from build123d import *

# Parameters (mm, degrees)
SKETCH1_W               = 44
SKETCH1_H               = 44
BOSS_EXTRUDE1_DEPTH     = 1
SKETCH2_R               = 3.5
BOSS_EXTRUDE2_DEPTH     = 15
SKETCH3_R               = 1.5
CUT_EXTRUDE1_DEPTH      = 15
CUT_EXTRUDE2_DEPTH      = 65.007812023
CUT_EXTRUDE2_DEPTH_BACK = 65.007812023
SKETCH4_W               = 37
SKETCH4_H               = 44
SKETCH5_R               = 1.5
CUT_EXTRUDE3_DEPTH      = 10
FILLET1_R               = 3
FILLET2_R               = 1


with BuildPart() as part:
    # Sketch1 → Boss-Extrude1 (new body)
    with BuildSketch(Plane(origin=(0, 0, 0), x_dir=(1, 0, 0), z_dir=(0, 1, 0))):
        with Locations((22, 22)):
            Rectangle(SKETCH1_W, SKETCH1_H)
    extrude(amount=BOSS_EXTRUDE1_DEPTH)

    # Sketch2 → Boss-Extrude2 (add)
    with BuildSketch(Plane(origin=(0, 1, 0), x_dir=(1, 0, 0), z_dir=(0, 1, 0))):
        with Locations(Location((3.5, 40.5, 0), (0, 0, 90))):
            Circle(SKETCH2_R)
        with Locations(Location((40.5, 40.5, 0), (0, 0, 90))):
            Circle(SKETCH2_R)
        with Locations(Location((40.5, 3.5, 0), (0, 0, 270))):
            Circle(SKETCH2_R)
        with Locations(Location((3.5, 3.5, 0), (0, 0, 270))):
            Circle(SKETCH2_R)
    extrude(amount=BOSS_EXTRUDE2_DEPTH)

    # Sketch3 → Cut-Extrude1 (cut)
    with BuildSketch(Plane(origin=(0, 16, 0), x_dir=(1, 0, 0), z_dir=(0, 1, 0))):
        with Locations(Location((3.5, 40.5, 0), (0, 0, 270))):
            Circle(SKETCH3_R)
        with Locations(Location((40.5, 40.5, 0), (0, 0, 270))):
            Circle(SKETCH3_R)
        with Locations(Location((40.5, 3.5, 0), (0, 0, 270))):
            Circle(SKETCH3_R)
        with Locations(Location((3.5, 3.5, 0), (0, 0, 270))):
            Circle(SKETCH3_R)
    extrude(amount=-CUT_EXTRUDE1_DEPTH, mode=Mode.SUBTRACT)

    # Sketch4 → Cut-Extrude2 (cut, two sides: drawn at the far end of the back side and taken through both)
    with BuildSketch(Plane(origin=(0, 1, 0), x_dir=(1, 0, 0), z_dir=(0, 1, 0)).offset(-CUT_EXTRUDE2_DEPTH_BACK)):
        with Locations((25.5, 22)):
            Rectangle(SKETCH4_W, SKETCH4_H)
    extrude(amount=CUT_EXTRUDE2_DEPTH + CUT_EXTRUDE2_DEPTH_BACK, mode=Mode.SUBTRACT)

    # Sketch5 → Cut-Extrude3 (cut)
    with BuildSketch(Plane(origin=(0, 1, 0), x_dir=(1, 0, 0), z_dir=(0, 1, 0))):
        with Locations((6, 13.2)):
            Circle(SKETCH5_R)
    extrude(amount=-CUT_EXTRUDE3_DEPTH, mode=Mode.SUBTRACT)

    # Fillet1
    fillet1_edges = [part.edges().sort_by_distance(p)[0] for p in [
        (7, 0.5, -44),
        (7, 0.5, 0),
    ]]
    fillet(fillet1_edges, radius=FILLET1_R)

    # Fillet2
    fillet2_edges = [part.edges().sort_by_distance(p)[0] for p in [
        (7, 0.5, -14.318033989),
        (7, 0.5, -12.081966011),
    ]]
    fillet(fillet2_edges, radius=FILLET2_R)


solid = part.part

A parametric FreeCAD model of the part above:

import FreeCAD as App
import Part
import Sketcher

V = App.Vector


def edges_at(feature, points):
    """Names of the edges that pass closest to the given points."""
    edges = feature.Shape.Edges
    near = lambda p: min(range(len(edges)), key=lambda i: edges[i].distToShape(Part.Vertex(*p))[0])
    return sorted({f"Edge{near(p) + 1}" for p in points})

doc = App.newDocument("Part")
body = doc.addObject("PartDesign::Body", "Body")

# Sketch on XZ plane
sketch1 = body.newObject("Sketcher::SketchObject", "Sketch")
sketch1.AttachmentSupport = (doc.getObject("XZ_Plane"), [""])
sketch1.MapMode = "FlatFace"
sketch1.addGeometry(Part.LineSegment(V(0, -44, 0), V(0, 0, 0)), False)
sketch1.addGeometry(Part.LineSegment(V(0, 0, 0), V(44, 0, 0)), False)
sketch1.addGeometry(Part.LineSegment(V(44, 0, 0), V(44, -44, 0)), False)
sketch1.addGeometry(Part.LineSegment(V(44, -44, 0), V(0, -44, 0)), False)
sketch1.addConstraint(Sketcher.Constraint("Coincident", 0, 2, 1, 1))
sketch1.addConstraint(Sketcher.Constraint("Coincident", 1, 2, 2, 1))
sketch1.addConstraint(Sketcher.Constraint("Coincident", 2, 2, 3, 1))
sketch1.addConstraint(Sketcher.Constraint("Coincident", 3, 2, 0, 1))
sketch1.addConstraint(Sketcher.Constraint("Vertical", 0))
sketch1.addConstraint(Sketcher.Constraint("Horizontal", 1))
sketch1.addConstraint(Sketcher.Constraint("Vertical", 2))
sketch1.addConstraint(Sketcher.Constraint("Horizontal", 3))
sketch1.addConstraint(Sketcher.Constraint("Coincident", 0, 2, -1, 1))
sketch1.addConstraint(Sketcher.Constraint("Equal", 3, 0))
sketch1.addConstraint(Sketcher.Constraint("DistanceX", 1, 1, 1, 2, 44.0))
pad1 = body.newObject("PartDesign::Pad", "Pad")
pad1.Profile = sketch1
pad1.Length = 1
pad1.Reversed = True

# Sketch on XZ plane
sketch2 = body.newObject("Sketcher::SketchObject", "Sketch001")
sketch2.AttachmentSupport = (doc.getObject("XZ_Plane"), [""])
sketch2.MapMode = "FlatFace"
sketch2.AttachmentOffset = App.Placement(V(0, 0, -1), App.Rotation())
sketch2.addGeometry(Part.Circle(V(3.5, -40.5, 0), V(0, 0, 1), 3.5), False)
sketch2.addGeometry(Part.Circle(V(40.5, -40.5, 0), V(0, 0, 1), 3.5), False)
sketch2.addGeometry(Part.Circle(V(40.5, -3.5, 0), V(0, 0, 1), 3.5), False)
sketch2.addGeometry(Part.Circle(V(3.5, -3.5, 0), V(0, 0, 1), 3.5), False)
sketch2.addConstraint(Sketcher.Constraint("Equal", 0, 1))
sketch2.addConstraint(Sketcher.Constraint("Equal", 1, 2))
sketch2.addConstraint(Sketcher.Constraint("Equal", 2, 3))
sketch2.addConstraint(Sketcher.Constraint("Horizontal", 0, 3, 1, 3))
sketch2.addConstraint(Sketcher.Constraint("Horizontal", 2, 3, 3, 3))
sketch2.addConstraint(Sketcher.Constraint("Vertical", 1, 3, 2, 3))
sketch2.addConstraint(Sketcher.Constraint("Vertical", 0, 3, 3, 3))
sketch2.addConstraint(Sketcher.Constraint("Diameter", 0, 7.0))
sketch2.addConstraint(Sketcher.Constraint("DistanceX", 0, 3, 1, 3, 37.0))
sketch2.addConstraint(Sketcher.Constraint("DistanceY", 1, 3, 2, 3, 37.0))
sketch2.addConstraint(Sketcher.Constraint("DistanceX", -1, 1, 0, 3, 3.5))
sketch2.addConstraint(Sketcher.Constraint("DistanceY", 0, 3, -1, 1, 40.5))
pad2 = body.newObject("PartDesign::Pad", "Pad001")
pad2.Profile = sketch2
pad2.Length = 15
pad2.Reversed = True

# Sketch on XZ plane
sketch3 = body.newObject("Sketcher::SketchObject", "Sketch002")
sketch3.AttachmentSupport = (doc.getObject("XZ_Plane"), [""])
sketch3.MapMode = "FlatFace"
sketch3.AttachmentOffset = App.Placement(V(0, 0, -16), App.Rotation())
sketch3.addGeometry(Part.Circle(V(3.5, -40.5, 0), V(0, 0, 1), 1.5), False)
sketch3.addGeometry(Part.Circle(V(40.5, -40.5, 0), V(0, 0, 1), 1.5), False)
sketch3.addGeometry(Part.Circle(V(40.5, -3.5, 0), V(0, 0, 1), 1.5), False)
sketch3.addGeometry(Part.Circle(V(3.5, -3.5, 0), V(0, 0, 1), 1.5), False)
sketch3.addConstraint(Sketcher.Constraint("Equal", 0, 1))
sketch3.addConstraint(Sketcher.Constraint("Equal", 1, 2))
sketch3.addConstraint(Sketcher.Constraint("Equal", 2, 3))
sketch3.addConstraint(Sketcher.Constraint("Horizontal", 0, 3, 1, 3))
sketch3.addConstraint(Sketcher.Constraint("Horizontal", 2, 3, 3, 3))
sketch3.addConstraint(Sketcher.Constraint("Vertical", 1, 3, 2, 3))
sketch3.addConstraint(Sketcher.Constraint("Vertical", 0, 3, 3, 3))
sketch3.addConstraint(Sketcher.Constraint("Diameter", 0, 3.0))
sketch3.addConstraint(Sketcher.Constraint("DistanceX", 0, 3, 1, 3, 37.0))
sketch3.addConstraint(Sketcher.Constraint("DistanceY", 1, 3, 2, 3, 37.0))
sketch3.addConstraint(Sketcher.Constraint("DistanceX", -1, 1, 0, 3, 3.5))
sketch3.addConstraint(Sketcher.Constraint("DistanceY", 0, 3, -1, 1, 40.5))
pocket1 = body.newObject("PartDesign::Pocket", "Pocket")
pocket1.Profile = sketch3
pocket1.Length = 15
pocket1.Reversed = True

# Sketch on XZ plane
sketch4 = body.newObject("Sketcher::SketchObject", "Sketch003")
sketch4.AttachmentSupport = (doc.getObject("XZ_Plane"), [""])
sketch4.MapMode = "FlatFace"
sketch4.AttachmentOffset = App.Placement(V(0, 0, -1), App.Rotation())
sketch4.addGeometry(Part.LineSegment(V(7, -44, 0), V(7, 0, 0)), False)
sketch4.addGeometry(Part.LineSegment(V(7, 0, 0), V(44, 0, 0)), False)
sketch4.addGeometry(Part.LineSegment(V(44, 0, 0), V(44, -44, 0)), False)
sketch4.addGeometry(Part.LineSegment(V(44, -44, 0), V(7, -44, 0)), False)
sketch4.addConstraint(Sketcher.Constraint("Coincident", 0, 2, 1, 1))
sketch4.addConstraint(Sketcher.Constraint("Coincident", 1, 2, 2, 1))
sketch4.addConstraint(Sketcher.Constraint("Coincident", 2, 2, 3, 1))
sketch4.addConstraint(Sketcher.Constraint("Coincident", 3, 2, 0, 1))
sketch4.addConstraint(Sketcher.Constraint("Vertical", 0))
sketch4.addConstraint(Sketcher.Constraint("Horizontal", 1))
sketch4.addConstraint(Sketcher.Constraint("Vertical", 2))
sketch4.addConstraint(Sketcher.Constraint("Horizontal", 3))
sketch4.addConstraint(Sketcher.Constraint("PointOnObject", 0, 2, -1))
sketch4.addConstraint(Sketcher.Constraint("DistanceX", 1, 1, 1, 2, 37.0))
sketch4.addConstraint(Sketcher.Constraint("DistanceY", 0, 1, 0, 2, 44.0))
sketch4.addConstraint(Sketcher.Constraint("DistanceX", -1, 1, 0, 2, 7.0))
pocket2 = body.newObject("PartDesign::Pocket", "Pocket001")
pocket2.Profile = sketch4
pocket2.Type = "ThroughAll"
pocket2.Midplane = True

# Sketch on XZ plane
sketch5 = body.newObject("Sketcher::SketchObject", "Sketch004")
sketch5.AttachmentSupport = (doc.getObject("XZ_Plane"), [""])
sketch5.MapMode = "FlatFace"
sketch5.AttachmentOffset = App.Placement(V(0, 0, -1), App.Rotation())
sketch5.addGeometry(Part.Circle(V(6, -13.2, 0), V(0, 0, 1), 1.5), False)
sketch5.addConstraint(Sketcher.Constraint("Diameter", 0, 3.0))
sketch5.addConstraint(Sketcher.Constraint("DistanceX", -1, 1, 0, 3, 6.0))
sketch5.addConstraint(Sketcher.Constraint("DistanceY", 0, 3, -1, 1, 13.2))
pocket3 = body.newObject("PartDesign::Pocket", "Pocket002")
pocket3.Profile = sketch5
pocket3.Length = 10
pocket3.Reversed = True
doc.recompute()

fillet = body.newObject("PartDesign::Fillet", "Fillet")
fillet.Base = (pocket3, edges_at(pocket3, [(7, 0.5, -44), (7, 0.5, 0)]))
fillet.Radius = 3
doc.recompute()

fillet2 = body.newObject("PartDesign::Fillet", "Fillet001")
fillet2.Base = (fillet, edges_at(fillet, [(7, 0.5, -14.318), (7, 0.5, -12.082)]))
fillet2.Radius = 1

doc.recompute()
